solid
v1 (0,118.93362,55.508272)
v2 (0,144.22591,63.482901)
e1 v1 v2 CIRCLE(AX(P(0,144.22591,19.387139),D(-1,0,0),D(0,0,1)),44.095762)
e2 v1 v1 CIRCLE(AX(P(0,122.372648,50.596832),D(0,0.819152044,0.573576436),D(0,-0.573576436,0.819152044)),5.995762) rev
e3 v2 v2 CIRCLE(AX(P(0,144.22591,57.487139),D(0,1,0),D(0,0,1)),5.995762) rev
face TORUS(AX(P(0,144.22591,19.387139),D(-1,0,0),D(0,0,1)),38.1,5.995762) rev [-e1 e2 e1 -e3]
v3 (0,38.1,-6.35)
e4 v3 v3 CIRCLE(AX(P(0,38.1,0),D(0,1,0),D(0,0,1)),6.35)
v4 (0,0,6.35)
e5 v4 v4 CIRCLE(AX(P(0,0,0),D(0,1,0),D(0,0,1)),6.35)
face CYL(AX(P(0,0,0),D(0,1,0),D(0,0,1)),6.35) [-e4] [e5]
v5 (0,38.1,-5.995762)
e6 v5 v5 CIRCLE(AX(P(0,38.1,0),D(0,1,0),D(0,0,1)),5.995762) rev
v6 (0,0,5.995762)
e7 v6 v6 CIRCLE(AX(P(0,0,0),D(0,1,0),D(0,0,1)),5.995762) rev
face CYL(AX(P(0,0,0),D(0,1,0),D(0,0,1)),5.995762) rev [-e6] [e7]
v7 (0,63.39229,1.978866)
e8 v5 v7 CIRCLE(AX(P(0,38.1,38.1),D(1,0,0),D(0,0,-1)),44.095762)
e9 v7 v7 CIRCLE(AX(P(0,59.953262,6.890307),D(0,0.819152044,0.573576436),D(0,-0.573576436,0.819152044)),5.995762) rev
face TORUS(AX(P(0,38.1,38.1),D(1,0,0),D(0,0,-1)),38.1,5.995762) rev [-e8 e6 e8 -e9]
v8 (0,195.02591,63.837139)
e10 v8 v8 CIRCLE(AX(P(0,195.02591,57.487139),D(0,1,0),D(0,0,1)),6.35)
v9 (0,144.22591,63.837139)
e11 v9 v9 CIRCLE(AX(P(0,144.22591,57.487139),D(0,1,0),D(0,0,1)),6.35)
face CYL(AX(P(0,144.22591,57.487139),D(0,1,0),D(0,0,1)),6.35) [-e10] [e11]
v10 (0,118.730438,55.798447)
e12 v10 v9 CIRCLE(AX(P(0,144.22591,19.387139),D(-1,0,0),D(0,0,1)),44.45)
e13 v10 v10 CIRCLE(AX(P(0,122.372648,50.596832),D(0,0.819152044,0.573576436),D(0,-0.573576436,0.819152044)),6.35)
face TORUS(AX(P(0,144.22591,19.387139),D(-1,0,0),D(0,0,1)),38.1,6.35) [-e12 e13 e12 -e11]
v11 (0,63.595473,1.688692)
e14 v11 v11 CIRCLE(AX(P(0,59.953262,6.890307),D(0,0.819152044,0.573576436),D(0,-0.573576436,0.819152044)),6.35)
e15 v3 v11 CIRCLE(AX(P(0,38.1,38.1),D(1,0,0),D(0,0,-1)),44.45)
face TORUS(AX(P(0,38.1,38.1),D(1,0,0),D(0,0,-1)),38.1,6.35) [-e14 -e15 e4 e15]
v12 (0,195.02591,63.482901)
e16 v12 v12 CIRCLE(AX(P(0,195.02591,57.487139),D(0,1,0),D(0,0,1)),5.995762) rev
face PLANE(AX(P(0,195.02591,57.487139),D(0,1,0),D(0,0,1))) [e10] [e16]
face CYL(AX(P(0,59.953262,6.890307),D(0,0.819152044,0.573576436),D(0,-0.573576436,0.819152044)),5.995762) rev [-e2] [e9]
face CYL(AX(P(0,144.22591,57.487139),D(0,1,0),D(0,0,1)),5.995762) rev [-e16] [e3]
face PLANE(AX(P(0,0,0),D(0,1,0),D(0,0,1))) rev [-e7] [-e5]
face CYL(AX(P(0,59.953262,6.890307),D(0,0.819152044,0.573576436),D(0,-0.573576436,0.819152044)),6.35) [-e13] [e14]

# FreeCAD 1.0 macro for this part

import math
import FreeCAD as App
import Part
import Sketcher
Q = App.Units.Quantity

doc = App.newDocument("Part")
params = doc.addObject("Spreadsheet::Sheet", "Params")
for row, (alias, value) in enumerate([
    ("sketch1_diameter", "0.5 in"),
    ("sketch2_radius", "1.5 in"),
    ("sketch2_width", "2 in"),
    ("sketch2_length", "3 in"),
    ("sketch2_width2", "1.5 in"),
], start=1):
    params.set(f"A{row}", alias)
    params.set(f"B{row}", "=" + value)
    params.setAlias(f"B{row}", alias)

body = doc.addObject("PartDesign::Body", "Body")

# Sketch on XZ plane
sketch1 = body.newObject("Sketcher::SketchObject", "Sketch")
sketch1.AttachmentSupport = (doc.getObject("XZ_Plane"), [""])
sketch1.MapMode = "FlatFace"
sketch1.addGeometry([
    Part.Circle(App.Vector(0, 0, 0), App.Vector(0, 0, 1), 6),
    Part.Circle(App.Vector(0, 0, 0), App.Vector(0, 0, 1), 6),
], False)
sketch1.addConstraint([
    Sketcher.Constraint("Coincident", 0, 3, -1, 1),
    Sketcher.Constraint("Coincident", 1, 3, -1, 1),
    Sketcher.Constraint("Diameter", 0, Q("0.5 in")),
    Sketcher.Constraint("Diameter", 1, 11.991524),
])
sketch1.setExpression("Constraints[2]", "Params.sketch1_diameter")

# Sketch on YZ plane
sketch2 = body.newObject("Sketcher::SketchObject", "Sketch001")
sketch2.AttachmentSupport = (doc.getObject("YZ_Plane"), [""])
sketch2.MapMode = "FlatFace"
sketch2.addGeometry([
    Part.LineSegment(App.Vector(0, 0, 0), App.Vector(38, 0, 0)),  # 0
    Part.ArcOfCircle(Part.Circle(App.Vector(38, 38, 0), App.Vector(0, 0, 1), 38), math.radians(-90), math.radians(-55)),  # 1
    Part.LineSegment(App.Vector(60, 7, 0), App.Vector(122, 51, 0)),  # 2
    Part.ArcOfCircle(Part.Circle(App.Vector(144, 19, 0), App.Vector(0, 0, 1), 38), math.radians(90), math.radians(125)),  # 3
    Part.LineSegment(App.Vector(144, 57, 0), App.Vector(195, 57, 0)),  # 4
], False)
sketch2.addConstraint([
    Sketcher.Constraint("Tangent", 0, 2, 1, 1),
    Sketcher.Constraint("Tangent", 1, 2, 2, 1),
    Sketcher.Constraint("Tangent", 2, 2, 3, 2),
    Sketcher.Constraint("Tangent", 3, 1, 4, 1),
    Sketcher.Constraint("Horizontal", 0),
    Sketcher.Constraint("Horizontal", 4),
    Sketcher.Constraint("Coincident", 0, 1, -1, 1),
    Sketcher.Constraint("Equal", 1, 3),
    Sketcher.Constraint("Radius", 1, Q("1.5 in")),
    Sketcher.Constraint("DistanceX", 4, 1, 4, 2, Q("2 in")),
    Sketcher.Constraint("Distance", 2, Q("3 in")),
    Sketcher.Constraint("DistanceX", 0, 1, 0, 2, Q("1.5 in")),
    Sketcher.Constraint("Angle", 2, Q("35 deg")),
])
sketch2.setExpression("Constraints[8]", "Params.sketch2_radius")
sketch2.setExpression("Constraints[9]", "Params.sketch2_width")
sketch2.setExpression("Constraints[10]", "Params.sketch2_length")
sketch2.setExpression("Constraints[11]", "Params.sketch2_width2")
doc.recompute()

additivepipe = body.newObject("PartDesign::AdditivePipe", "AdditivePipe")
additivepipe.Profile = sketch1
additivepipe.Spine = (sketch2, ["Edge1", "Edge2", "Edge3", "Edge4", "Edge5"])

doc.recompute()
